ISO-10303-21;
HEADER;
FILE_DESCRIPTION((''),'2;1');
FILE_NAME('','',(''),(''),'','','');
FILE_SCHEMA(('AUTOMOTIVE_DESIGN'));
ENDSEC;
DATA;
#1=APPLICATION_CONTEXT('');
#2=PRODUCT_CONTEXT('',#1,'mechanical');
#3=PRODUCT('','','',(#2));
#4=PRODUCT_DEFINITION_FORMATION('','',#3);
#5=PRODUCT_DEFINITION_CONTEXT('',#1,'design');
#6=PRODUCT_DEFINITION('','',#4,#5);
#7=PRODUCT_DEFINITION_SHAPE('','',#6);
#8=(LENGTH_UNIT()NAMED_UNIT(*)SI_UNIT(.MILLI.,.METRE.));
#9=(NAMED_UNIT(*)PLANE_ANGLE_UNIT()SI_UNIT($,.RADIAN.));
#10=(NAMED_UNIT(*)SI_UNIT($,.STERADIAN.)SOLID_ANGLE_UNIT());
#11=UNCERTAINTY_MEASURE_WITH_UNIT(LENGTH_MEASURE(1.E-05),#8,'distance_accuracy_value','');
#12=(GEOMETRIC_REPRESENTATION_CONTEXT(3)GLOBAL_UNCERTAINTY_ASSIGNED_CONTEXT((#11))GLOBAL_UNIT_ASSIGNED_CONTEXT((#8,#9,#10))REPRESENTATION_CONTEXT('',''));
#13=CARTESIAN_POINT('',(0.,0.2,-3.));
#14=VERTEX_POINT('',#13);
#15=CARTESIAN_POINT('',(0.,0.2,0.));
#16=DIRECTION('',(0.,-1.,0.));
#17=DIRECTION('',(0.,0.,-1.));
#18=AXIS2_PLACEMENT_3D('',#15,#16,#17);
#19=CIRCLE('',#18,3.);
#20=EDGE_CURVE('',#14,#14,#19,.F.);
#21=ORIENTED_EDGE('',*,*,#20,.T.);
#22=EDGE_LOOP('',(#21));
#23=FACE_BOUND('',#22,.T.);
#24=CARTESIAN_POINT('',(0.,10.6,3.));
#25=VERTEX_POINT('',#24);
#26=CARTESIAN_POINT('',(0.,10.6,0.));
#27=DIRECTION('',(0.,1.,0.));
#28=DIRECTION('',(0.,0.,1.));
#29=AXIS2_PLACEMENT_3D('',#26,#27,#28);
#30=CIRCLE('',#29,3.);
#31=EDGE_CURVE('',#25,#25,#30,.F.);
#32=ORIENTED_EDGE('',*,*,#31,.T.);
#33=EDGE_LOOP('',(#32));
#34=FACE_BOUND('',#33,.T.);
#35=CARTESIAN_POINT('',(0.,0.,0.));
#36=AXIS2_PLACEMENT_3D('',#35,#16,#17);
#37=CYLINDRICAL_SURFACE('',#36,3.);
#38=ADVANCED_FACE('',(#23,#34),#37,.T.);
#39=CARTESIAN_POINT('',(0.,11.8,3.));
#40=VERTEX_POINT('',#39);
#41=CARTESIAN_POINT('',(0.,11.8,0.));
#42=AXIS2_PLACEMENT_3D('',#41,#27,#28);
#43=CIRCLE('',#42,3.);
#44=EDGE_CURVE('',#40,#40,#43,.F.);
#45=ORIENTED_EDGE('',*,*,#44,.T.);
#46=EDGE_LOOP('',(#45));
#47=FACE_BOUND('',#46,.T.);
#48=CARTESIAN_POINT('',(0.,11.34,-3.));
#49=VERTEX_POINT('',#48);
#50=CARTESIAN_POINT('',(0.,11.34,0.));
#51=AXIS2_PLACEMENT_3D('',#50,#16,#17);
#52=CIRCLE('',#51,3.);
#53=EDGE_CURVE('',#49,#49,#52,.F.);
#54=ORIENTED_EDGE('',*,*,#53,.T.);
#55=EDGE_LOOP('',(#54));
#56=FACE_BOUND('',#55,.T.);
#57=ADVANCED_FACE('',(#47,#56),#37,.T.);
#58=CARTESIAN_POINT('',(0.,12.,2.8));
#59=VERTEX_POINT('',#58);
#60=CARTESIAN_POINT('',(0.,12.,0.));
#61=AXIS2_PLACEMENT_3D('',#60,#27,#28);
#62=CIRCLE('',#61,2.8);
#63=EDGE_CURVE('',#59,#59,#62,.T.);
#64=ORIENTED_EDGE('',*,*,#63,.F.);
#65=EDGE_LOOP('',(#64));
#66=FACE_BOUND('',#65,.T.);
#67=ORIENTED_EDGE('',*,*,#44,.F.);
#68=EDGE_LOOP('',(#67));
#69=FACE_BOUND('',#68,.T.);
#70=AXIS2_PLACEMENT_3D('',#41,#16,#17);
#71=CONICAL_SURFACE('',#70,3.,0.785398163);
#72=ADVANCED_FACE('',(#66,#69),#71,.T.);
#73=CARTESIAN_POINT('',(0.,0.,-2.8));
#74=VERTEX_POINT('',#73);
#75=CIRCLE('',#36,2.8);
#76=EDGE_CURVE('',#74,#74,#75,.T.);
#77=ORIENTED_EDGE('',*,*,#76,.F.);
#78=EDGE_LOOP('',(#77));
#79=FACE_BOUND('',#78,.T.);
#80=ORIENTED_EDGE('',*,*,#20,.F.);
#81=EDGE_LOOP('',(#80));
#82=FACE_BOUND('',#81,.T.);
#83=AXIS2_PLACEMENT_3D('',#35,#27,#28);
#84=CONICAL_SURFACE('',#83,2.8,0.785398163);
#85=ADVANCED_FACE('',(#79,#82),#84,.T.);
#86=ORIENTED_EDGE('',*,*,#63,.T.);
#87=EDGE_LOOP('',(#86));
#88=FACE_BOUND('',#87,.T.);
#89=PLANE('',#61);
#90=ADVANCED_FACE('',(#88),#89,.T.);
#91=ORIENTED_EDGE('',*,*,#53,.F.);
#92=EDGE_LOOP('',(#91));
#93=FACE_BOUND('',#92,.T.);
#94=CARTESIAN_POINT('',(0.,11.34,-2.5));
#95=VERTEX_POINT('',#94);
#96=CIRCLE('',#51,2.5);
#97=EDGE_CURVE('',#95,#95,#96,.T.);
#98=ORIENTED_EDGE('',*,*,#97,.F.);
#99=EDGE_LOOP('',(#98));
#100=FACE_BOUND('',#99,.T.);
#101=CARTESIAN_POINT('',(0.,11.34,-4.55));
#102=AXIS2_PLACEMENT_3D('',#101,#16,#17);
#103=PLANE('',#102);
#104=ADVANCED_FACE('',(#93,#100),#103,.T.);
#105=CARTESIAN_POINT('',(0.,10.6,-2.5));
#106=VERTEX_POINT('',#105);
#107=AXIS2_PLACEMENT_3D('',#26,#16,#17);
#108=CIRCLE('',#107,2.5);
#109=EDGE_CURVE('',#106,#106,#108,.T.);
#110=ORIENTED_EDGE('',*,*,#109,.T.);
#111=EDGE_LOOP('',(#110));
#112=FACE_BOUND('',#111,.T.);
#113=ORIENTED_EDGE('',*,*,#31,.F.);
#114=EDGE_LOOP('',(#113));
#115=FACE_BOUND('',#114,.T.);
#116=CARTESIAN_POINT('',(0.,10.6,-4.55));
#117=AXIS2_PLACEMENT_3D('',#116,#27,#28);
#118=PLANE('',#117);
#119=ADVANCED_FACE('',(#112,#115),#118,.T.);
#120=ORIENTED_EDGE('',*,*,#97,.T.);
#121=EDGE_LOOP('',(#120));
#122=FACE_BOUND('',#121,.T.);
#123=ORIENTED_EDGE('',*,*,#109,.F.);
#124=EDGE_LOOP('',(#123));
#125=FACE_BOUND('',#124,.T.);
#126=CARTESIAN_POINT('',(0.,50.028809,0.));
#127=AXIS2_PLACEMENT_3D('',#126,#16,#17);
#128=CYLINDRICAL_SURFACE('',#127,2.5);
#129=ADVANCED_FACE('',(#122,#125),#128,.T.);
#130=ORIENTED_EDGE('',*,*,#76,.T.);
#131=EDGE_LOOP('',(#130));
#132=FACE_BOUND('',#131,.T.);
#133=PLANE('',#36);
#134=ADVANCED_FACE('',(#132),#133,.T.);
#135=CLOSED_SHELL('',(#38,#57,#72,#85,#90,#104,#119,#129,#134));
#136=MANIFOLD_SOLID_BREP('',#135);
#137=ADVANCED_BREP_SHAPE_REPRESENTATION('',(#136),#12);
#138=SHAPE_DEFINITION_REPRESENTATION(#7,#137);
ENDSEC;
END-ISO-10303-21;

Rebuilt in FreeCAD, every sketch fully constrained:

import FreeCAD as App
import Part
import Sketcher

V = App.Vector
Q = App.Units.Quantity


def edges_at(feature, points):
    """Names of the edges that pass closest to the given points."""
    edges = feature.Shape.Edges
    near = lambda p: min(range(len(edges)), key=lambda i: edges[i].distToShape(Part.Vertex(*p))[0])
    return sorted({f"Edge{near(p) + 1}" for p in points})


def add_polygon(sketch, points):
    """Adds a closed chain of lines whose ends are joined by coincident constraints."""
    first, n = sketch.GeometryCount, len(points)
    for a, b in zip(points, points[1:] + points[:1]):
        sketch.addGeometry(Part.LineSegment(App.Vector(*a, 0), App.Vector(*b, 0)), False)
    for i in range(n):
        sketch.addConstraint(Sketcher.Constraint("Coincident", first + i, 2, first + (i + 1) % n, 1))

doc = App.newDocument("Part")
params = doc.addObject("Spreadsheet::Sheet", "Params")
for row, (alias, value) in enumerate([
    ("sketch1_width", "3 mm"),
    ("sketch1_height", "12 mm"),
    ("revolution_angle", "360 deg"),
    ("sketch2_width", "0.74 mm"),
    ("sketch2_height", "2.05 mm"),
    ("groove_angle", "360 deg"),
    ("chamfer_size", "0.2 mm"),
], start=1):
    params.set(f"A{row}", alias)
    params.set(f"B{row}", "=" + value)
    params.setAlias(f"B{row}", alias)

body = doc.addObject("PartDesign::Body", "Body")

# Sketch on XY plane
sketch1 = doc.addObject("Sketcher::SketchObject", "Sketch")
body.addObject(sketch1)
sketch1.AttachmentSupport = (doc.XY_Plane, [""])
sketch1.MapMode = "FlatFace"
add_polygon(sketch1, [(0, 12), (0, 0), (3, 0), (3, 12)])  # lines 0-3
sketch1.addConstraint([
    Sketcher.Constraint("Vertical", 0),
    Sketcher.Constraint("Horizontal", 1),
    Sketcher.Constraint("Vertical", 2),
    Sketcher.Constraint("Horizontal", 3),
    Sketcher.Constraint("Coincident", 0, 2, -1, 1),
    Sketcher.Constraint("DistanceX", 1, 1, 1, 2, Q("3 mm")),
    Sketcher.Constraint("DistanceY", 0, 2, 0, 1, Q("12 mm")),
])
sketch1.setExpression("Constraints[9]", "Params.sketch1_width")
sketch1.setExpression("Constraints[10]", "Params.sketch1_height")
revolution = doc.addObject("PartDesign::Revolution", "Revolution")
body.addObject(revolution)
revolution.Profile = sketch1
revolution.ReferenceAxis = (sketch1, ["V_Axis"])
revolution.setExpression("Angle", "Params.revolution_angle")

# Sketch on YZ plane
sketch2 = doc.addObject("Sketcher::SketchObject", "Sketch001")
body.addObject(sketch2)
sketch2.AttachmentSupport = (doc.YZ_Plane, [""])
sketch2.MapMode = "FlatFace"
add_polygon(sketch2, [(10.6, -2.5), (11.3, -2.5), (11.3, -4.5), (10.6, -4.5)])  # lines 0-3
sketch2.addConstraint([
    Sketcher.Constraint("Horizontal", 0),
    Sketcher.Constraint("Vertical", 1),
    Sketcher.Constraint("Horizontal", 2),
    Sketcher.Constraint("Vertical", 3),
    Sketcher.Constraint("DistanceX", 0, 1, 0, 2, Q("0.74 mm")),
    Sketcher.Constraint("DistanceY", 1, 2, 1, 1, Q("2.05 mm")),
    Sketcher.Constraint("DistanceY", 0, 2, -1, 1, Q("2.5 mm")),
    Sketcher.Constraint("DistanceX", -1, 1, 2, 2, Q("10.6 mm")),
])
sketch2.setExpression("Constraints[8]", "Params.sketch2_width")
sketch2.setExpression("Constraints[9]", "Params.sketch2_height")
groove = doc.addObject("PartDesign::Groove", "Groove")
body.addObject(groove)
groove.Profile = sketch2
groove.ReferenceAxis = (sketch2, ["H_Axis"])
groove.setExpression("Angle", "Params.groove_angle")
doc.recompute()

chamfer = doc.addObject("PartDesign::Chamfer", "Chamfer")
body.addObject(chamfer)
chamfer.Base = (groove, edges_at(groove, [(-3, 0, 0), (-3, 12, 0)]))
chamfer.setExpression("Size", "Params.chamfer_size")

doc.recompute()
